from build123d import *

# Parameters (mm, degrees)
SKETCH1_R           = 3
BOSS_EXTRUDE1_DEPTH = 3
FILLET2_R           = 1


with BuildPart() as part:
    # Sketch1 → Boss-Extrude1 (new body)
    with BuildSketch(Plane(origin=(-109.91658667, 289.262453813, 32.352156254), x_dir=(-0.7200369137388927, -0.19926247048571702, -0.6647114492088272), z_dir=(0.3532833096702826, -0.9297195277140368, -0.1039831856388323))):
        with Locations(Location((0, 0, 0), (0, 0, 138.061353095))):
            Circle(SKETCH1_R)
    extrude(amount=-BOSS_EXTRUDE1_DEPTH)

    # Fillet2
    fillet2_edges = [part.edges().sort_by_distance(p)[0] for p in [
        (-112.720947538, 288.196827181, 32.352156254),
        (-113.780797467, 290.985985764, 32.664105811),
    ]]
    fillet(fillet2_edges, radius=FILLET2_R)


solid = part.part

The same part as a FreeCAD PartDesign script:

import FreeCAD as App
import Part
import Sketcher


def edges_at(feature, points):
    """Names of the edges that pass closest to the given points."""
    edges = feature.Shape.Edges
    near = lambda p: min(range(len(edges)), key=lambda i: edges[i].distToShape(Part.Vertex(*p))[0])
    return sorted({f"Edge{near(p) + 1}" for p in points})

doc = App.newDocument("Part")
body = doc.addObject("PartDesign::Body", "Body")

sketch1 = body.newObject("Sketcher::SketchObject", "Sketch")
sketch1.Placement = App.Placement(App.Vector(-109.916587, 289.262454, 32.352156), App.Rotation(App.Vector(-0.720036914, -0.19926247, -0.664711449), App.Vector(0.597275268, 0.309703193, -0.739828485), App.Vector(0.35328331, -0.929719528, -0.103983186), "ZXY"))
sketch1.addGeometry(Part.Circle(App.Vector(0, 0, 0), App.Vector(0, 0, 1), 3), False)
sketch1.addConstraint([
    Sketcher.Constraint("Coincident", 0, 3, -1, 1),
    Sketcher.Constraint("Diameter", 0, 6.0),
])
pad1 = body.newObject("PartDesign::Pad", "Pad")
pad1.Profile = sketch1
pad1.Length = 3
pad1.Reversed = True
doc.recompute()

fillet = body.newObject("PartDesign::Fillet", "Fillet")
fillet.Base = (pad1, edges_at(pad1, [(-112.721, 288.197, 32.352), (-113.781, 290.986, 32.664)]))
fillet.Radius = 1

doc.recompute()
